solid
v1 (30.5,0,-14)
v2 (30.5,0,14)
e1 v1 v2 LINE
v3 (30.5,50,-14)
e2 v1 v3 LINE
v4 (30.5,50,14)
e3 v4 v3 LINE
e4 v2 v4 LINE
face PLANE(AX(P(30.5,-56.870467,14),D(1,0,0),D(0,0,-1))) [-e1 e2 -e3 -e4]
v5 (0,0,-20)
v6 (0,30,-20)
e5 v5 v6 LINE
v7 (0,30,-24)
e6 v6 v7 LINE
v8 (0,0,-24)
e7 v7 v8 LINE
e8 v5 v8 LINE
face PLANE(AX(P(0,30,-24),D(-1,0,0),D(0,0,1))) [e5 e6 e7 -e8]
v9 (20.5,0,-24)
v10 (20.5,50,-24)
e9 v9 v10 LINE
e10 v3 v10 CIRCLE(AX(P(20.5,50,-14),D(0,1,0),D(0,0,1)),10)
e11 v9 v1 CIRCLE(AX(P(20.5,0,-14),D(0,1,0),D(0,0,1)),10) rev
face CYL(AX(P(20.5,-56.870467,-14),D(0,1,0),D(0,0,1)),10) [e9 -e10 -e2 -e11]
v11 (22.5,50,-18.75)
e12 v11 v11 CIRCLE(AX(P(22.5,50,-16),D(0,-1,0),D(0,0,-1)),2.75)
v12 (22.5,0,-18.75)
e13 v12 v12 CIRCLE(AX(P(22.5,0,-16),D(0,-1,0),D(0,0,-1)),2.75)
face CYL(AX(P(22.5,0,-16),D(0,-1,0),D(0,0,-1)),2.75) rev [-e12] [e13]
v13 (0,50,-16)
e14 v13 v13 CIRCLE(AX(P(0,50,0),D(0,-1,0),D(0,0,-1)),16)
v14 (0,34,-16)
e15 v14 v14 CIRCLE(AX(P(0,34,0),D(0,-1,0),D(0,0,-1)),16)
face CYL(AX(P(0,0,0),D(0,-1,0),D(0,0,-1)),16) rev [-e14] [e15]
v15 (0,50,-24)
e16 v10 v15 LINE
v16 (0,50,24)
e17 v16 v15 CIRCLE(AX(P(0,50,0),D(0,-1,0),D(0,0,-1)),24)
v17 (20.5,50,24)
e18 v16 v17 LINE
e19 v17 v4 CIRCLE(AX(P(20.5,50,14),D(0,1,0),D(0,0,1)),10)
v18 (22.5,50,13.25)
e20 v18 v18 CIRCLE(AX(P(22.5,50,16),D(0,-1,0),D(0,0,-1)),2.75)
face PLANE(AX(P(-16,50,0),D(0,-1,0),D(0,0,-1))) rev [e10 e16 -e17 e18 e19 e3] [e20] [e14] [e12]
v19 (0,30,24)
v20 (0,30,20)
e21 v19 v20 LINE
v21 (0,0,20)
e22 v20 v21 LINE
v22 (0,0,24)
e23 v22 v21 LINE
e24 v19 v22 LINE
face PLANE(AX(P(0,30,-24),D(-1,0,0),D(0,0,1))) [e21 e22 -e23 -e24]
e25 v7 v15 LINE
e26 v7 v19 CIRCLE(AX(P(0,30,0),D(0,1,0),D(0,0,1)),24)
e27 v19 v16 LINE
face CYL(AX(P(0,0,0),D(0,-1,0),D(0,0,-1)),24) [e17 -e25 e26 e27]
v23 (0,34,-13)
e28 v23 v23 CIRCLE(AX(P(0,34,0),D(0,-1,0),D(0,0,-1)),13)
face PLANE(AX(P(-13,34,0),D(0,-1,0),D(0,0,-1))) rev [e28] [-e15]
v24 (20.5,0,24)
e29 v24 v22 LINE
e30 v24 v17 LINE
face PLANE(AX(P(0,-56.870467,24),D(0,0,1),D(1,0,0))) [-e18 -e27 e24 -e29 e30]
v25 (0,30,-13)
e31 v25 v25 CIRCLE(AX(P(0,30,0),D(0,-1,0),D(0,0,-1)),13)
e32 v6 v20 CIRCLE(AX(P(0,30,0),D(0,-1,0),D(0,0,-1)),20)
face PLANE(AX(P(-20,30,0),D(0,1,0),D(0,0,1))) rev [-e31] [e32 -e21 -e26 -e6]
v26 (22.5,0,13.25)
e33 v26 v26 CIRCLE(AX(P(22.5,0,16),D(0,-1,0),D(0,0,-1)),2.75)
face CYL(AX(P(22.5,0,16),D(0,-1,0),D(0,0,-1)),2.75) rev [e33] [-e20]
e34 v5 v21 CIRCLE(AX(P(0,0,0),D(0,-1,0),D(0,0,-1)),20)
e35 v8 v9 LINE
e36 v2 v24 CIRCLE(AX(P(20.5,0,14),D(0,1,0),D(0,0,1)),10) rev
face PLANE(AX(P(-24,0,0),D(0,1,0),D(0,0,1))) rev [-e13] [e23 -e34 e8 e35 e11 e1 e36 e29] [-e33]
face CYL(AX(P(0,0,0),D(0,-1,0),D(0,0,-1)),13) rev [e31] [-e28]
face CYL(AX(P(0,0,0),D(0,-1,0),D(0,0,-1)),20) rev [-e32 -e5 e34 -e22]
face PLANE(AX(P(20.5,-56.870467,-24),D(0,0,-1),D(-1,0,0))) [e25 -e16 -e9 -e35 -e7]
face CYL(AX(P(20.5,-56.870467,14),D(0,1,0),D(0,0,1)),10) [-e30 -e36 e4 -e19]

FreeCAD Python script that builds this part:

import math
import FreeCAD as App
import Part
import Sketcher

V = App.Vector
Q = App.Units.Quantity

doc = App.newDocument("Part")
params = doc.addObject("Spreadsheet::Sheet", "Params")
for row, (alias, value) in enumerate([
    ("sketch1_width", "4 mm"),
    ("sketch1_width2", "7 mm"),
    ("sketch1_width3", "3 mm"),
    ("sketch1_height", "50 mm"),
    ("sketch1_height2", "30 mm"),
    ("revolution_angle", "360 deg"),
    ("sketch2_height", "48 mm"),
    ("pocket1_length", "30 mm"),
    ("sketch3_radius", "10 mm"),
    ("sketch3_radius2", "24 mm"),
    ("sketch3_width", "20.5 mm"),
    ("pad1_length", "50 mm"),
    ("sketch4_diameter", "5.5 mm"),
    ("hole_diameter", "5.5 mm"),
], start=1):
    params.set(f"A{row}", alias)
    params.set(f"B{row}", "=" + value)
    params.setAlias(f"B{row}", alias)

body = doc.addObject("PartDesign::Body", "Body")

sketch1 = body.newObject("Sketcher::SketchObject", "Sketch")
sketch1.AttachmentSupport = (doc.getObject("XY_Plane"), [""])
sketch1.MapMode = "FlatFace"
sketch1.addGeometry(Part.LineSegment(V(-24, 50, 0), V(-24, 0, 0)), False)
sketch1.addGeometry(Part.LineSegment(V(-24, 0, 0), V(-20, 0, 0)), False)
sketch1.addGeometry(Part.LineSegment(V(-20, 0, 0), V(-20, 30, 0)), False)
sketch1.addGeometry(Part.LineSegment(V(-20, 30, 0), V(-13, 30, 0)), False)
sketch1.addGeometry(Part.LineSegment(V(-13, 30, 0), V(-13, 34, 0)), False)
sketch1.addGeometry(Part.LineSegment(V(-13, 34, 0), V(-16, 34, 0)), False)
sketch1.addGeometry(Part.LineSegment(V(-16, 34, 0), V(-16, 50, 0)), False)
sketch1.addGeometry(Part.LineSegment(V(-16, 50, 0), V(-24, 50, 0)), False)
sketch1.addConstraint(Sketcher.Constraint("Coincident", 0, 2, 1, 1))
sketch1.addConstraint(Sketcher.Constraint("Coincident", 1, 2, 2, 1))
sketch1.addConstraint(Sketcher.Constraint("Coincident", 2, 2, 3, 1))
sketch1.addConstraint(Sketcher.Constraint("Coincident", 3, 2, 4, 1))
sketch1.addConstraint(Sketcher.Constraint("Coincident", 4, 2, 5, 1))
sketch1.addConstraint(Sketcher.Constraint("Coincident", 5, 2, 6, 1))
sketch1.addConstraint(Sketcher.Constraint("Coincident", 6, 2, 7, 1))
sketch1.addConstraint(Sketcher.Constraint("Coincident", 7, 2, 0, 1))
sketch1.addConstraint(Sketcher.Constraint("Vertical", 0))
sketch1.addConstraint(Sketcher.Constraint("Horizontal", 1))
sketch1.addConstraint(Sketcher.Constraint("Vertical", 2))
sketch1.addConstraint(Sketcher.Constraint("Horizontal", 3))
sketch1.addConstraint(Sketcher.Constraint("Vertical", 4))
sketch1.addConstraint(Sketcher.Constraint("Horizontal", 5))
sketch1.addConstraint(Sketcher.Constraint("Vertical", 6))
sketch1.addConstraint(Sketcher.Constraint("Horizontal", 7))
sketch1.addConstraint(Sketcher.Constraint("PointOnObject", 0, 2, -1))
sketch1.addConstraint(Sketcher.Constraint("Equal", 1, 4))
sketch1.addConstraint(Sketcher.Constraint("DistanceX", 1, 1, 1, 2, Q("4 mm")))
sketch1.addConstraint(Sketcher.Constraint("DistanceX", 3, 1, 3, 2, Q("7 mm")))
sketch1.addConstraint(Sketcher.Constraint("DistanceX", 5, 2, 5, 1, Q("3 mm")))
sketch1.addConstraint(Sketcher.Constraint("DistanceY", 0, 2, 0, 1, Q("50 mm")))
sketch1.addConstraint(Sketcher.Constraint("DistanceY", 2, 1, 2, 2, Q("30 mm")))
sketch1.addConstraint(Sketcher.Constraint("DistanceX", 0, 2, -1, 1, Q("24 mm")))
sketch1.setExpression("Constraints[18]", "Params.sketch1_width")
sketch1.setExpression("Constraints[19]", "Params.sketch1_width2")
sketch1.setExpression("Constraints[20]", "Params.sketch1_width3")
sketch1.setExpression("Constraints[21]", "Params.sketch1_height")
sketch1.setExpression("Constraints[22]", "Params.sketch1_height2")
revolution = body.newObject("PartDesign::Revolution", "Revolution")
revolution.Profile = sketch1
revolution.ReferenceAxis = (sketch1, ["V_Axis"])
revolution.setExpression("Angle", "Params.revolution_angle")

sketch2 = body.newObject("Sketcher::SketchObject", "Sketch001")
sketch2.AttachmentSupport = (doc.getObject("XZ_Plane"), [""])
sketch2.MapMode = "FlatFace"
sketch2.addGeometry(Part.LineSegment(V(-39, -24, 0), V(-39, 24, 0)), False)
sketch2.addGeometry(Part.LineSegment(V(-39, 24, 0), V(0, 24, 0)), False)
sketch2.addGeometry(Part.LineSegment(V(0, 24, 0), V(0, -24, 0)), False)
sketch2.addGeometry(Part.LineSegment(V(0, -24, 0), V(-39, -24, 0)), False)
sketch2.addConstraint(Sketcher.Constraint("Coincident", 0, 2, 1, 1))
sketch2.addConstraint(Sketcher.Constraint("Coincident", 1, 2, 2, 1))
sketch2.addConstraint(Sketcher.Constraint("Coincident", 2, 2, 3, 1))
sketch2.addConstraint(Sketcher.Constraint("Coincident", 3, 2, 0, 1))
sketch2.addConstraint(Sketcher.Constraint("Vertical", 0))
sketch2.addConstraint(Sketcher.Constraint("Horizontal", 1))
sketch2.addConstraint(Sketcher.Constraint("Vertical", 2))
sketch2.addConstraint(Sketcher.Constraint("Horizontal", 3))
sketch2.addConstraint(Sketcher.Constraint("Symmetric", 1, 2, 2, 2, -1, 1))
sketch2.addConstraint(Sketcher.Constraint("DistanceY", 0, 1, 0, 2, Q("48 mm")))
sketch2.addConstraint(Sketcher.Constraint("DistanceX", 1, 1, 1, 2, Q("38.791431 mm")))
sketch2.setExpression("Constraints[9]", "Params.sketch2_height")
pocket1 = body.newObject("PartDesign::Pocket", "Pocket")
pocket1.Profile = sketch2
pocket1.setExpression("Length", "Params.pocket1_length")

sketch3 = body.newObject("Sketcher::SketchObject", "Sketch002")
sketch3.AttachmentSupport = (doc.getObject("XZ_Plane"), [""])
sketch3.MapMode = "FlatFace"
sketch3.addGeometry(Part.LineSegment(V(0, 24, 0), V(20, 24, 0)), False)
sketch3.addGeometry(Part.ArcOfCircle(Part.Circle(V(20, 14, 0), V(0, 0, 1), 10), math.radians(0), math.radians(90)), False)
sketch3.addGeometry(Part.LineSegment(V(30, 14, 0), V(30, -14, 0)), False)
sketch3.addGeometry(Part.ArcOfCircle(Part.Circle(V(20, -14, 0), V(0, 0, 1), 10), math.radians(-90), math.radians(0)), False)
sketch3.addGeometry(Part.LineSegment(V(20, -24, 0), V(0, -24, 0)), False)
sketch3.addGeometry(Part.ArcOfCircle(Part.Circle(V(0, 0, 0), V(0, 0, 1), 24), math.radians(-90), math.radians(90)), False)
sketch3.addConstraint(Sketcher.Constraint("Tangent", 0, 2, 1, 2))
sketch3.addConstraint(Sketcher.Constraint("Tangent", 1, 1, 2, 1))
sketch3.addConstraint(Sketcher.Constraint("Tangent", 2, 2, 3, 2))
sketch3.addConstraint(Sketcher.Constraint("Tangent", 3, 1, 4, 1))
sketch3.addConstraint(Sketcher.Constraint("Tangent", 4, 2, 5, 1))
sketch3.addConstraint(Sketcher.Constraint("Tangent", 5, 2, 0, 1))
sketch3.addConstraint(Sketcher.Constraint("Horizontal", 0))
sketch3.addConstraint(Sketcher.Constraint("Vertical", 2))
sketch3.addConstraint(Sketcher.Constraint("Horizontal", 4))
sketch3.addConstraint(Sketcher.Constraint("Coincident", 5, 3, -1, 1))
sketch3.addConstraint(Sketcher.Constraint("Equal", 1, 3))
sketch3.addConstraint(Sketcher.Constraint("Radius", 1, Q("10 mm")))
sketch3.addConstraint(Sketcher.Constraint("Radius", 5, Q("24 mm")))
sketch3.addConstraint(Sketcher.Constraint("DistanceX", 0, 1, 0, 2, Q("20.5 mm")))
sketch3.setExpression("Constraints[11]", "Params.sketch3_radius")
sketch3.setExpression("Constraints[12]", "Params.sketch3_radius2")
sketch3.setExpression("Constraints[13]", "Params.sketch3_width")
pad1 = body.newObject("PartDesign::Pad", "Pad")
pad1.Profile = sketch3
pad1.setExpression("Length", "Params.pad1_length")
pad1.Reversed = True

sketch4 = body.newObject("Sketcher::SketchObject", "Sketch003")
sketch4.AttachmentSupport = (doc.getObject("XZ_Plane"), [""])
sketch4.MapMode = "FlatFace"
sketch4.addGeometry(Part.Circle(V(22.5, 16, 0), V(0, 0, 1), 2.8), False)
sketch4.addGeometry(Part.Circle(V(22.5, -16, 0), V(0, 0, 1), 2.8), False)
sketch4.addConstraint(Sketcher.Constraint("Equal", 0, 1))
sketch4.addConstraint(Sketcher.Constraint("Symmetric", 0, 3, 1, 3, -1))
sketch4.addConstraint(Sketcher.Constraint("Diameter", 0, Q("5.5 mm")))
sketch4.addConstraint(Sketcher.Constraint("DistanceY", -1, 1, 0, 3, Q("16 mm")))
sketch4.addConstraint(Sketcher.Constraint("DistanceX", -1, 1, 0, 3, Q("22.5 mm")))
sketch4.setExpression("Constraints[2]", "Params.sketch4_diameter")
doc.recompute()
hole = body.newObject("PartDesign::Hole", "Hole")
hole.Profile = sketch4
hole.ThreadType = "None"
hole.setExpression("Diameter", "Params.hole_diameter")
hole.DepthType = "ThroughAll"

doc.recompute()
